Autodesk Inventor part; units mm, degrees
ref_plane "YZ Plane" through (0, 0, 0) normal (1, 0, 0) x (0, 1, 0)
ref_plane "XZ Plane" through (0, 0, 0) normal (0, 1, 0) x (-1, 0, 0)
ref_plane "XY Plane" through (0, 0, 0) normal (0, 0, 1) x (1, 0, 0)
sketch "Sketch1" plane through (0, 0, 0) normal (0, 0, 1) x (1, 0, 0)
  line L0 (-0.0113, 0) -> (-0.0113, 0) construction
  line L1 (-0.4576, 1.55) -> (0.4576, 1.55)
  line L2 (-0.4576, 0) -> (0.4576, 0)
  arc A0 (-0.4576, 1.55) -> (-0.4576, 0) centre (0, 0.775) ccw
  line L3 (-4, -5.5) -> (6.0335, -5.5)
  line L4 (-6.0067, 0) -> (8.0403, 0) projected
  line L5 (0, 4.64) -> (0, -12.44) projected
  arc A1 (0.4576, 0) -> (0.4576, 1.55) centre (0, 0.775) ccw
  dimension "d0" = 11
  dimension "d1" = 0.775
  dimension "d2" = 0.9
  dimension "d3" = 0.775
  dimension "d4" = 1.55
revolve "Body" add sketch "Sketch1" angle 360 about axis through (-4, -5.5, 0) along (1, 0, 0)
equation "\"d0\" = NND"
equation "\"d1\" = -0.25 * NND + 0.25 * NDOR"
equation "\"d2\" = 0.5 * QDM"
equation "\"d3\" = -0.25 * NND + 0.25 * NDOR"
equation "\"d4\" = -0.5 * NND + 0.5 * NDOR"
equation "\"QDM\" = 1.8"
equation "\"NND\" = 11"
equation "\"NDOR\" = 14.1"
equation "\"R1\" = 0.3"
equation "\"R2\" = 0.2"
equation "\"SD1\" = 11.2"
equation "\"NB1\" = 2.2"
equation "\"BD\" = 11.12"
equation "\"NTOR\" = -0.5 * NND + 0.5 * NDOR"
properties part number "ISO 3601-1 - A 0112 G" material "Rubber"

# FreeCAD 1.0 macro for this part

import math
import FreeCAD as App
import Part
import Sketcher

doc = App.newDocument("Part")
params = doc.addObject("Spreadsheet::Sheet", "Params")
for row, (alias, value) in enumerate([
    ("sketch1_radius", "0.9 mm"),
    ("revolution_angle", "360 deg"),
], start=1):
    params.set(f"A{row}", alias)
    params.set(f"B{row}", "=" + value)
    params.setAlias(f"B{row}", alias)

body = doc.addObject("PartDesign::Body", "Body")

sketch1 = doc.addObject("Sketcher::SketchObject", "Sketch")
body.addObject(sketch1)
sketch1.AttachmentSupport = (doc.XY_Plane, [""])
sketch1.MapMode = "FlatFace"
sketch1.addGeometry([
    Part.ArcOfCircle(Part.Circle(App.Vector(0, 0.775, 0), App.Vector(0, 0, 1), 0.900013), math.radians(120.559795), math.radians(239.440205)),
    Part.LineSegment(App.Vector(-0.4576, 0, 0), App.Vector(0.4576, 0, 0)),
    Part.ArcOfCircle(Part.Circle(App.Vector(0, 0.775, 0), App.Vector(0, 0, 1), 0.900013), math.radians(-59.440205), math.radians(59.440205)),
    Part.LineSegment(App.Vector(0.4576, 1.55, 0), App.Vector(-0.4576, 1.55, 0)),
], False)
sketch1.addGeometry(Part.LineSegment(App.Vector(-0.4576, -5.5, 0), App.Vector(0.4576, -5.5, 0)), True)
sketch1.addConstraint([
    Sketcher.Constraint("Coincident", 0, 2, 1, 1),
    Sketcher.Constraint("Coincident", 1, 2, 2, 1),
    Sketcher.Constraint("Coincident", 2, 2, 3, 1),
    Sketcher.Constraint("Coincident", 3, 2, 0, 1),
    Sketcher.Constraint("Horizontal", 1),
    Sketcher.Constraint("Horizontal", 3),
    Sketcher.Constraint("Horizontal", 4),
    Sketcher.Constraint("Coincident", 2, 3, 0, 3),
    Sketcher.Constraint("Equal", 0, 2),
    Sketcher.Constraint("Symmetric", 0, 2, 1, 2, -1, 1),
    Sketcher.Constraint("Vertical", 1, 2, 2, 2),
    Sketcher.Constraint("Vertical", 3, 2, 4, 1),
    Sketcher.Constraint("Vertical", 2, 2, 4, 2),
    Sketcher.Constraint("Radius", 0, 0.9),
    Sketcher.Constraint("DistanceY", -1, 1, 2, 2, 1.55),
    Sketcher.Constraint("DistanceY", 4, 1, -1, 1, 5.5),
])
sketch1.setExpression("Constraints[13]", "Params.sketch1_radius")
revolution = doc.addObject("PartDesign::Revolution", "Revolution")
body.addObject(revolution)
revolution.Profile = sketch1
revolution.ReferenceAxis = (sketch1, ["Axis0"])
revolution.setExpression("Angle", "Params.revolution_angle")

doc.recompute()
